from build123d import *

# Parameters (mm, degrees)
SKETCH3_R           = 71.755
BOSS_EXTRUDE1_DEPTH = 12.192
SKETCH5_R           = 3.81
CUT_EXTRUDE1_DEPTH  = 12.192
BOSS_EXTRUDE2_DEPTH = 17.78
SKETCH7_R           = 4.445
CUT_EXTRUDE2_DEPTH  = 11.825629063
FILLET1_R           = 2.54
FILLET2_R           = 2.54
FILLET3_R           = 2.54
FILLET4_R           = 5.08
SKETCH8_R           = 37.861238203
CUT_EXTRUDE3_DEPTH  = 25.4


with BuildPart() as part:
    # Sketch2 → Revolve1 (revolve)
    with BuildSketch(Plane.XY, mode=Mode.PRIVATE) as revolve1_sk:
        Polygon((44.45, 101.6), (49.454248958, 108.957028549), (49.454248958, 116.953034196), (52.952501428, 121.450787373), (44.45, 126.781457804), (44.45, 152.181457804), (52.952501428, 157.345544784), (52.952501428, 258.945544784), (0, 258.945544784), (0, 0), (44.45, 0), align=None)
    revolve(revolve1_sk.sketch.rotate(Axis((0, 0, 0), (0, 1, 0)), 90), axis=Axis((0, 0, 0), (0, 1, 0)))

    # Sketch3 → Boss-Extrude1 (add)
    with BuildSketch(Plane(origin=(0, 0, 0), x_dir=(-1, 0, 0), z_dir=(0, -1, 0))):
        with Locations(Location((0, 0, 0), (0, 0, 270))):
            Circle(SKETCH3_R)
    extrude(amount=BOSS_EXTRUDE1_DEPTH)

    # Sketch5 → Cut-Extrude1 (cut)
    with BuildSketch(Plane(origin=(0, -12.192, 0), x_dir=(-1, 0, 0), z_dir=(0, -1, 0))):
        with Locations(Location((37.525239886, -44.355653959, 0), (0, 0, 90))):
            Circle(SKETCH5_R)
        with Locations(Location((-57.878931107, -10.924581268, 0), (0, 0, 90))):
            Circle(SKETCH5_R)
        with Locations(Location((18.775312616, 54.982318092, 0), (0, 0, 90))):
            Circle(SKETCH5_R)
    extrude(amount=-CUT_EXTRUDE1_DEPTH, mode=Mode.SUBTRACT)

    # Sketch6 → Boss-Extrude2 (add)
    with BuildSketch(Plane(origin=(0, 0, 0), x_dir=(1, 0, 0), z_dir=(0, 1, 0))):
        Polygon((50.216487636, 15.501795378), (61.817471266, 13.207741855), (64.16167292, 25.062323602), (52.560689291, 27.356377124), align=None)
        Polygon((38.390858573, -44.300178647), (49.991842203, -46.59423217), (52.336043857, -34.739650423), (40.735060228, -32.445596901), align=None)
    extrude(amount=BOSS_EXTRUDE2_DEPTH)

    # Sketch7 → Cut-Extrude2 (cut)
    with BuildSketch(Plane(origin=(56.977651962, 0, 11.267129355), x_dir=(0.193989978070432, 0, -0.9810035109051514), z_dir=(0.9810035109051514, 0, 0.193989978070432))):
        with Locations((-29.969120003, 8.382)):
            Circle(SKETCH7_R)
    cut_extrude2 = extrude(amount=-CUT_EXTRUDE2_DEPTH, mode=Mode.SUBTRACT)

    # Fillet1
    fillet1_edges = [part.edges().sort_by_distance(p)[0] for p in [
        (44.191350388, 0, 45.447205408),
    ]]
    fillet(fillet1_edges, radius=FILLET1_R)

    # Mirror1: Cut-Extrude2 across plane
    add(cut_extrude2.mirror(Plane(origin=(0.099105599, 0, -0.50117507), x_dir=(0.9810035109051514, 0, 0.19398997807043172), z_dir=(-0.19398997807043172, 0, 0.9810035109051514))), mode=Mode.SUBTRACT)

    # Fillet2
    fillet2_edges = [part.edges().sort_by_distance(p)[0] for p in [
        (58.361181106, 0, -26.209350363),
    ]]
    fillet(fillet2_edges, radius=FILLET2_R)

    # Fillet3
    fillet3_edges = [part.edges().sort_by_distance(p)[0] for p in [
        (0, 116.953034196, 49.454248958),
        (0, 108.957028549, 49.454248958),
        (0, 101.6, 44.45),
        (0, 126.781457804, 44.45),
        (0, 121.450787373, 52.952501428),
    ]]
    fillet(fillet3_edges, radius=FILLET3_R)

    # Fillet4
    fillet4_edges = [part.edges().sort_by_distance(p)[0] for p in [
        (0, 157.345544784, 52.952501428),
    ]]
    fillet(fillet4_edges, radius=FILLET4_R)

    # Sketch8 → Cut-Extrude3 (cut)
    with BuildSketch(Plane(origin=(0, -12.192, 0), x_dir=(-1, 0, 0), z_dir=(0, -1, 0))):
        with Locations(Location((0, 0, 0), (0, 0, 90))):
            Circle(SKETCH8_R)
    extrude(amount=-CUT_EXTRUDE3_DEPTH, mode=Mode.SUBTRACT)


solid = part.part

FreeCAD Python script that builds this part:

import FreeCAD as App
import Part
import Sketcher
Q = App.Units.Quantity


def edges_at(feature, points):
    """Names of the edges that pass closest to the given points."""
    edges = feature.Shape.Edges
    near = lambda p: min(range(len(edges)), key=lambda i: edges[i].distToShape(Part.Vertex(*p))[0])
    return sorted({f"Edge{near(p) + 1}" for p in points})


def add_polygon(sketch, points):
    """Adds a closed chain of lines whose ends are joined by coincident constraints."""
    first, n = sketch.GeometryCount, len(points)
    for a, b in zip(points, points[1:] + points[:1]):
        sketch.addGeometry(Part.LineSegment(App.Vector(*a, 0), App.Vector(*b, 0)), False)
    for i in range(n):
        sketch.addConstraint(Sketcher.Constraint("Coincident", first + i, 2, first + (i + 1) % n, 1))

doc = App.newDocument("Part")
params = doc.addObject("Spreadsheet::Sheet", "Params")
for row, (alias, value) in enumerate([
    ("sketch1_height", "1 in"),
    ("sketch1_height2", "4 in"),
    ("sketch1_width", "1.75 in"),
    ("revolution_angle", "360 deg"),
    ("sketch2_diameter", "5.65 in"),
    ("pad1_length", "0.48 in"),
    ("sketch3_diameter", "0.3 in"),
    ("pocket1_length", "0.48 in"),
    ("pad2_length", "0.7 in"),
    ("sketch5_diameter", "0.35 in"),
    ("pocket2_length", "11.825629 mm"),
    ("fillet_radius", "0.1 in"),
    ("fillet2_radius", "0.1 in"),
    ("fillet3_radius", "0.1 in"),
    ("fillet4_radius", "0.2 in"),
    ("pocket3_length", "1 in"),
], start=1):
    params.set(f"A{row}", alias)
    params.set(f"B{row}", "=" + value)
    params.setAlias(f"B{row}", alias)

body = doc.addObject("PartDesign::Body", "Body")

# Sketch on XY plane
sketch1 = doc.addObject("Sketcher::SketchObject", "Sketch")
body.addObject(sketch1)
sketch1.AttachmentSupport = (doc.XY_Plane, [""])
sketch1.MapMode = "FlatFace"
add_polygon(sketch1, [(44, 102), (49, 109), (49, 117), (53, 121), (44, 127), (44, 152), (53, 157), (53, 259), (0, 259), (0, 0), (44, 0)])  # lines 0-10
sketch1.addConstraint(Sketcher.Constraint("Vertical", 1))
sketch1.addConstraint(Sketcher.Constraint("Vertical", 4))
sketch1.addConstraint(Sketcher.Constraint("Vertical", 6))
sketch1.addConstraint(Sketcher.Constraint("Horizontal", 7))
sketch1.addConstraint(Sketcher.Constraint("Vertical", 8))
sketch1.addConstraint(Sketcher.Constraint("Horizontal", 9))
sketch1.addConstraint(Sketcher.Constraint("Vertical", 10))
sketch1.addConstraint(Sketcher.Constraint("Coincident", 8, 2, -1, 1))
sketch1.addConstraint(Sketcher.Constraint("Vertical", 2, 2, 5, 2))
sketch1.addConstraint(Sketcher.Constraint("Vertical", 4, 2, 9, 2))
sketch1.addConstraint(Sketcher.Constraint("Equal", 6, 10))
sketch1.addConstraint(Sketcher.Constraint("DistanceY", 4, 1, 4, 2, Q("1 in")))
sketch1.addConstraint(Sketcher.Constraint("DistanceY", 6, 1, 6, 2, Q("4 in")))
sketch1.addConstraint(Sketcher.Constraint("DistanceX", 9, 1, 9, 2, Q("1.75 in")))
sketch1.addConstraint(Sketcher.Constraint("DistanceX", 7, 2, 7, 1, Q("52.952501 mm")))
sketch1.addConstraint(Sketcher.Constraint("Distance", 0, Q("8.897661 mm")))
sketch1.addConstraint(Sketcher.Constraint("Distance", 2, Q("5.698031 mm")))
sketch1.addConstraint(Sketcher.Constraint("Distance", 5, Q("9.94788 mm")))
sketch1.addConstraint(Sketcher.Constraint("DistanceY", 1, 1, 1, 2, Q("7.996006 mm")))
sketch1.addConstraint(Sketcher.Constraint("DistanceY", 8, 2, 8, 1, Q("258.945545 mm")))
sketch1.addConstraint(Sketcher.Constraint("DistanceX", -1, 1, 0, 2, Q("49.454249 mm")))
sketch1.setExpression("Constraints[22]", "Params.sketch1_height")
sketch1.setExpression("Constraints[23]", "Params.sketch1_height2")
sketch1.setExpression("Constraints[24]", "Params.sketch1_width")
revolution = doc.addObject("PartDesign::Revolution", "Revolution")
body.addObject(revolution)
revolution.Profile = sketch1
revolution.ReferenceAxis = (sketch1, ["V_Axis"])
revolution.setExpression("Angle", "Params.revolution_angle")

# Sketch on XZ plane
sketch2 = doc.addObject("Sketcher::SketchObject", "Sketch001")
body.addObject(sketch2)
sketch2.AttachmentSupport = (doc.XZ_Plane, [""])
sketch2.MapMode = "FlatFace"
sketch2.addGeometry(Part.Circle(App.Vector(0, 0, 0), App.Vector(0, 0, 1), 72), False)
sketch2.addConstraint(Sketcher.Constraint("Coincident", 0, 3, -1, 1))
sketch2.addConstraint(Sketcher.Constraint("Diameter", 0, Q("5.65 in")))
sketch2.setExpression("Constraints[1]", "Params.sketch2_diameter")
pad1 = doc.addObject("PartDesign::Pad", "Pad")
body.addObject(pad1)
pad1.Profile = sketch2
pad1.setExpression("Length", "Params.pad1_length")

# Sketch on XZ plane
sketch3 = doc.addObject("Sketcher::SketchObject", "Sketch002")
body.addObject(sketch3)
sketch3.AttachmentSupport = (doc.XZ_Plane, [""])
sketch3.MapMode = "FlatFace"
sketch3.AttachmentOffset = App.Placement(App.Vector(0, 0, 0.48 * 25.4), App.Rotation())
sketch3.addGeometry(Part.Circle(App.Vector(-37.5, 44.4, 0), App.Vector(0, 0, 1), 3.8), False)
sketch3.addGeometry(Part.Circle(App.Vector(57.9, 10.9, 0), App.Vector(0, 0, 1), 3.8), False)
sketch3.addGeometry(Part.Circle(App.Vector(-18.8, -55, 0), App.Vector(0, 0, 1), 3.8), False)
sketch3.addConstraint(Sketcher.Constraint("Equal", 0, 1))
sketch3.addConstraint(Sketcher.Constraint("Equal", 1, 2))
sketch3.addConstraint(Sketcher.Constraint("Diameter", 0, Q("0.3 in")))
sketch3.addConstraint(Sketcher.Constraint("DistanceY", 2, 3, 1, 3, Q("65.906899 mm")))
sketch3.addConstraint(Sketcher.Constraint("DistanceX", 0, 3, -1, 1, Q("37.52524 mm")))
sketch3.addConstraint(Sketcher.Constraint("DistanceX", -1, 1, 1, 3, Q("57.878931 mm")))
sketch3.addConstraint(Sketcher.Constraint("DistanceY", -1, 1, 1, 3, Q("10.924581 mm")))
sketch3.addConstraint(Sketcher.Constraint("DistanceY", -1, 1, 0, 3, Q("44.355654 mm")))
sketch3.addConstraint(Sketcher.Constraint("DistanceX", 2, 3, -1, 1, Q("18.775313 mm")))
sketch3.setExpression("Constraints[2]", "Params.sketch3_diameter")
pocket1 = doc.addObject("PartDesign::Pocket", "Pocket")
body.addObject(pocket1)
pocket1.Profile = sketch3
pocket1.setExpression("Length", "Params.pocket1_length")

# Sketch on XZ plane
sketch4 = doc.addObject("Sketcher::SketchObject", "Sketch003")
body.addObject(sketch4)
sketch4.AttachmentSupport = (doc.XZ_Plane, [""])
sketch4.MapMode = "FlatFace"
add_polygon(sketch4, [(50, -16), (62, -13), (64, -25), (53, -27)])  # lines 0-3
add_polygon(sketch4, [(38, 44), (50, 47), (52, 35), (41, 32)])  # lines 4-7
sketch4.addConstraint(Sketcher.Constraint("Perpendicular", 0, 1))
sketch4.addConstraint(Sketcher.Constraint("Perpendicular", 1, 2))
sketch4.addConstraint(Sketcher.Constraint("Perpendicular", 2, 3))
sketch4.addConstraint(Sketcher.Constraint("Perpendicular", 3, 4))
sketch4.addConstraint(Sketcher.Constraint("Perpendicular", 4, 5))
sketch4.addConstraint(Sketcher.Constraint("Perpendicular", 5, 6))
sketch4.addConstraint(Sketcher.Constraint("Perpendicular", 6, 7))
sketch4.addConstraint(Sketcher.Constraint("Equal", 2, 4))
sketch4.addConstraint(Sketcher.Constraint("Equal", 3, 5))
sketch4.addConstraint(Sketcher.Constraint("DistanceX", 0, 2, 1, 2, Q("2.344202 mm")))
sketch4.addConstraint(Sketcher.Constraint("Distance", 0, Q("11.825629 mm")))
sketch4.addConstraint(Sketcher.Constraint("DistanceX", -1, 1, 0, 2, Q("61.817471 mm")))
sketch4.addConstraint(Sketcher.Constraint("DistanceY", 0, 2, -1, 1, Q("13.207742 mm")))
sketch4.addConstraint(Sketcher.Constraint("DistanceX", -1, 1, 2, 2, Q("52.560689 mm")))
sketch4.addConstraint(Sketcher.Constraint("DistanceY", -1, 1, 5, 2, Q("34.73965 mm")))
sketch4.addConstraint(Sketcher.Constraint("DistanceX", -1, 1, 6, 2, Q("40.73506 mm")))
pad2 = doc.addObject("PartDesign::Pad", "Pad001")
body.addObject(pad2)
pad2.Profile = sketch4
pad2.setExpression("Length", "Params.pad2_length")
pad2.Reversed = True

# Sketch on an angled plane
sketch5 = doc.addObject("Sketcher::SketchObject", "Sketch004")
body.addObject(sketch5)
sketch5.Placement = App.Placement(App.Vector(56.977652, 0, 11.267129), App.Rotation(App.Vector(0.193989978, 0, -0.981003511), App.Vector(0, 1, 0), App.Vector(0.981003511, 0, 0.193989978), "ZXY"))
sketch5.addGeometry(Part.Circle(App.Vector(-30, 8.4, 0), App.Vector(0, 0, 1), 4.4), False)
sketch5.addConstraint(Sketcher.Constraint("Diameter", 0, Q("0.35 in")))
sketch5.addConstraint(Sketcher.Constraint("DistanceY", -1, 1, 0, 3, Q("0.33 in")))
sketch5.addConstraint(Sketcher.Constraint("DistanceX", 0, 3, -1, 1, Q("29.96912 mm")))
sketch5.setExpression("Constraints[0]", "Params.sketch5_diameter")
pocket2 = doc.addObject("PartDesign::Pocket", "Pocket001")
body.addObject(pocket2)
pocket2.Profile = sketch5
pocket2.setExpression("Length", "Params.pocket2_length")
doc.recompute()

fillet = doc.addObject("PartDesign::Fillet", "Fillet")
body.addObject(fillet)
fillet.Base = (pocket2, edges_at(pocket2, [(44.191, 0, 45.447)]))
fillet.setExpression("Radius", "Params.fillet_radius")
doc.recompute()

datumplane = doc.addObject("PartDesign::Plane", "DatumPlane")
body.addObject(datumplane)
datumplane.Placement = App.Placement(App.Vector(0.099106, 0, -0.501175), App.Rotation(App.Vector(-0.981003511, 0, -0.193989978), App.Vector(0, -1, 0), App.Vector(-0.193989978, 0, 0.981003511), "ZXY"))
mirrored = doc.addObject("PartDesign::Mirrored", "Mirrored")
body.addObject(mirrored)
mirrored.Originals = [pocket2]
mirrored.MirrorPlane = (datumplane, [""])
body.Tip = mirrored
doc.recompute()

fillet2 = doc.addObject("PartDesign::Fillet", "Fillet001")
body.addObject(fillet2)
fillet2.Base = (mirrored, edges_at(mirrored, [(58.361, 0, -26.209)]))
fillet2.setExpression("Radius", "Params.fillet2_radius")
doc.recompute()

fillet3 = doc.addObject("PartDesign::Fillet", "Fillet002")
body.addObject(fillet3)
fillet3.Base = (fillet2, edges_at(fillet2, [
    (0, 116.953, 49.454),
    (0, 108.957, 49.454),
    (0, 101.6, 44.45),
    (0, 126.781, 44.45),
    (0, 121.451, 52.953),
]))
fillet3.setExpression("Radius", "Params.fillet3_radius")
doc.recompute()

fillet4 = doc.addObject("PartDesign::Fillet", "Fillet003")
body.addObject(fillet4)
fillet4.Base = (fillet3, edges_at(fillet3, [(0, 157.346, 52.953)]))
fillet4.setExpression("Radius", "Params.fillet4_radius")

# Sketch on XZ plane
sketch6 = doc.addObject("Sketcher::SketchObject", "Sketch005")
body.addObject(sketch6)
sketch6.AttachmentSupport = (doc.XZ_Plane, [""])
sketch6.MapMode = "FlatFace"
sketch6.AttachmentOffset = App.Placement(App.Vector(0, 0, 0.48 * 25.4), App.Rotation())
sketch6.addGeometry(Part.Circle(App.Vector(0, 0, 0), App.Vector(0, 0, 1), 38), False)
sketch6.addConstraint(Sketcher.Constraint("Coincident", 0, 3, -1, 1))
sketch6.addConstraint(Sketcher.Constraint("Diameter", 0, Q("2.9811999 in")))
pocket3 = doc.addObject("PartDesign::Pocket", "Pocket002")
body.addObject(pocket3)
pocket3.Profile = sketch6
pocket3.setExpression("Length", "Params.pocket3_length")

doc.recompute()
